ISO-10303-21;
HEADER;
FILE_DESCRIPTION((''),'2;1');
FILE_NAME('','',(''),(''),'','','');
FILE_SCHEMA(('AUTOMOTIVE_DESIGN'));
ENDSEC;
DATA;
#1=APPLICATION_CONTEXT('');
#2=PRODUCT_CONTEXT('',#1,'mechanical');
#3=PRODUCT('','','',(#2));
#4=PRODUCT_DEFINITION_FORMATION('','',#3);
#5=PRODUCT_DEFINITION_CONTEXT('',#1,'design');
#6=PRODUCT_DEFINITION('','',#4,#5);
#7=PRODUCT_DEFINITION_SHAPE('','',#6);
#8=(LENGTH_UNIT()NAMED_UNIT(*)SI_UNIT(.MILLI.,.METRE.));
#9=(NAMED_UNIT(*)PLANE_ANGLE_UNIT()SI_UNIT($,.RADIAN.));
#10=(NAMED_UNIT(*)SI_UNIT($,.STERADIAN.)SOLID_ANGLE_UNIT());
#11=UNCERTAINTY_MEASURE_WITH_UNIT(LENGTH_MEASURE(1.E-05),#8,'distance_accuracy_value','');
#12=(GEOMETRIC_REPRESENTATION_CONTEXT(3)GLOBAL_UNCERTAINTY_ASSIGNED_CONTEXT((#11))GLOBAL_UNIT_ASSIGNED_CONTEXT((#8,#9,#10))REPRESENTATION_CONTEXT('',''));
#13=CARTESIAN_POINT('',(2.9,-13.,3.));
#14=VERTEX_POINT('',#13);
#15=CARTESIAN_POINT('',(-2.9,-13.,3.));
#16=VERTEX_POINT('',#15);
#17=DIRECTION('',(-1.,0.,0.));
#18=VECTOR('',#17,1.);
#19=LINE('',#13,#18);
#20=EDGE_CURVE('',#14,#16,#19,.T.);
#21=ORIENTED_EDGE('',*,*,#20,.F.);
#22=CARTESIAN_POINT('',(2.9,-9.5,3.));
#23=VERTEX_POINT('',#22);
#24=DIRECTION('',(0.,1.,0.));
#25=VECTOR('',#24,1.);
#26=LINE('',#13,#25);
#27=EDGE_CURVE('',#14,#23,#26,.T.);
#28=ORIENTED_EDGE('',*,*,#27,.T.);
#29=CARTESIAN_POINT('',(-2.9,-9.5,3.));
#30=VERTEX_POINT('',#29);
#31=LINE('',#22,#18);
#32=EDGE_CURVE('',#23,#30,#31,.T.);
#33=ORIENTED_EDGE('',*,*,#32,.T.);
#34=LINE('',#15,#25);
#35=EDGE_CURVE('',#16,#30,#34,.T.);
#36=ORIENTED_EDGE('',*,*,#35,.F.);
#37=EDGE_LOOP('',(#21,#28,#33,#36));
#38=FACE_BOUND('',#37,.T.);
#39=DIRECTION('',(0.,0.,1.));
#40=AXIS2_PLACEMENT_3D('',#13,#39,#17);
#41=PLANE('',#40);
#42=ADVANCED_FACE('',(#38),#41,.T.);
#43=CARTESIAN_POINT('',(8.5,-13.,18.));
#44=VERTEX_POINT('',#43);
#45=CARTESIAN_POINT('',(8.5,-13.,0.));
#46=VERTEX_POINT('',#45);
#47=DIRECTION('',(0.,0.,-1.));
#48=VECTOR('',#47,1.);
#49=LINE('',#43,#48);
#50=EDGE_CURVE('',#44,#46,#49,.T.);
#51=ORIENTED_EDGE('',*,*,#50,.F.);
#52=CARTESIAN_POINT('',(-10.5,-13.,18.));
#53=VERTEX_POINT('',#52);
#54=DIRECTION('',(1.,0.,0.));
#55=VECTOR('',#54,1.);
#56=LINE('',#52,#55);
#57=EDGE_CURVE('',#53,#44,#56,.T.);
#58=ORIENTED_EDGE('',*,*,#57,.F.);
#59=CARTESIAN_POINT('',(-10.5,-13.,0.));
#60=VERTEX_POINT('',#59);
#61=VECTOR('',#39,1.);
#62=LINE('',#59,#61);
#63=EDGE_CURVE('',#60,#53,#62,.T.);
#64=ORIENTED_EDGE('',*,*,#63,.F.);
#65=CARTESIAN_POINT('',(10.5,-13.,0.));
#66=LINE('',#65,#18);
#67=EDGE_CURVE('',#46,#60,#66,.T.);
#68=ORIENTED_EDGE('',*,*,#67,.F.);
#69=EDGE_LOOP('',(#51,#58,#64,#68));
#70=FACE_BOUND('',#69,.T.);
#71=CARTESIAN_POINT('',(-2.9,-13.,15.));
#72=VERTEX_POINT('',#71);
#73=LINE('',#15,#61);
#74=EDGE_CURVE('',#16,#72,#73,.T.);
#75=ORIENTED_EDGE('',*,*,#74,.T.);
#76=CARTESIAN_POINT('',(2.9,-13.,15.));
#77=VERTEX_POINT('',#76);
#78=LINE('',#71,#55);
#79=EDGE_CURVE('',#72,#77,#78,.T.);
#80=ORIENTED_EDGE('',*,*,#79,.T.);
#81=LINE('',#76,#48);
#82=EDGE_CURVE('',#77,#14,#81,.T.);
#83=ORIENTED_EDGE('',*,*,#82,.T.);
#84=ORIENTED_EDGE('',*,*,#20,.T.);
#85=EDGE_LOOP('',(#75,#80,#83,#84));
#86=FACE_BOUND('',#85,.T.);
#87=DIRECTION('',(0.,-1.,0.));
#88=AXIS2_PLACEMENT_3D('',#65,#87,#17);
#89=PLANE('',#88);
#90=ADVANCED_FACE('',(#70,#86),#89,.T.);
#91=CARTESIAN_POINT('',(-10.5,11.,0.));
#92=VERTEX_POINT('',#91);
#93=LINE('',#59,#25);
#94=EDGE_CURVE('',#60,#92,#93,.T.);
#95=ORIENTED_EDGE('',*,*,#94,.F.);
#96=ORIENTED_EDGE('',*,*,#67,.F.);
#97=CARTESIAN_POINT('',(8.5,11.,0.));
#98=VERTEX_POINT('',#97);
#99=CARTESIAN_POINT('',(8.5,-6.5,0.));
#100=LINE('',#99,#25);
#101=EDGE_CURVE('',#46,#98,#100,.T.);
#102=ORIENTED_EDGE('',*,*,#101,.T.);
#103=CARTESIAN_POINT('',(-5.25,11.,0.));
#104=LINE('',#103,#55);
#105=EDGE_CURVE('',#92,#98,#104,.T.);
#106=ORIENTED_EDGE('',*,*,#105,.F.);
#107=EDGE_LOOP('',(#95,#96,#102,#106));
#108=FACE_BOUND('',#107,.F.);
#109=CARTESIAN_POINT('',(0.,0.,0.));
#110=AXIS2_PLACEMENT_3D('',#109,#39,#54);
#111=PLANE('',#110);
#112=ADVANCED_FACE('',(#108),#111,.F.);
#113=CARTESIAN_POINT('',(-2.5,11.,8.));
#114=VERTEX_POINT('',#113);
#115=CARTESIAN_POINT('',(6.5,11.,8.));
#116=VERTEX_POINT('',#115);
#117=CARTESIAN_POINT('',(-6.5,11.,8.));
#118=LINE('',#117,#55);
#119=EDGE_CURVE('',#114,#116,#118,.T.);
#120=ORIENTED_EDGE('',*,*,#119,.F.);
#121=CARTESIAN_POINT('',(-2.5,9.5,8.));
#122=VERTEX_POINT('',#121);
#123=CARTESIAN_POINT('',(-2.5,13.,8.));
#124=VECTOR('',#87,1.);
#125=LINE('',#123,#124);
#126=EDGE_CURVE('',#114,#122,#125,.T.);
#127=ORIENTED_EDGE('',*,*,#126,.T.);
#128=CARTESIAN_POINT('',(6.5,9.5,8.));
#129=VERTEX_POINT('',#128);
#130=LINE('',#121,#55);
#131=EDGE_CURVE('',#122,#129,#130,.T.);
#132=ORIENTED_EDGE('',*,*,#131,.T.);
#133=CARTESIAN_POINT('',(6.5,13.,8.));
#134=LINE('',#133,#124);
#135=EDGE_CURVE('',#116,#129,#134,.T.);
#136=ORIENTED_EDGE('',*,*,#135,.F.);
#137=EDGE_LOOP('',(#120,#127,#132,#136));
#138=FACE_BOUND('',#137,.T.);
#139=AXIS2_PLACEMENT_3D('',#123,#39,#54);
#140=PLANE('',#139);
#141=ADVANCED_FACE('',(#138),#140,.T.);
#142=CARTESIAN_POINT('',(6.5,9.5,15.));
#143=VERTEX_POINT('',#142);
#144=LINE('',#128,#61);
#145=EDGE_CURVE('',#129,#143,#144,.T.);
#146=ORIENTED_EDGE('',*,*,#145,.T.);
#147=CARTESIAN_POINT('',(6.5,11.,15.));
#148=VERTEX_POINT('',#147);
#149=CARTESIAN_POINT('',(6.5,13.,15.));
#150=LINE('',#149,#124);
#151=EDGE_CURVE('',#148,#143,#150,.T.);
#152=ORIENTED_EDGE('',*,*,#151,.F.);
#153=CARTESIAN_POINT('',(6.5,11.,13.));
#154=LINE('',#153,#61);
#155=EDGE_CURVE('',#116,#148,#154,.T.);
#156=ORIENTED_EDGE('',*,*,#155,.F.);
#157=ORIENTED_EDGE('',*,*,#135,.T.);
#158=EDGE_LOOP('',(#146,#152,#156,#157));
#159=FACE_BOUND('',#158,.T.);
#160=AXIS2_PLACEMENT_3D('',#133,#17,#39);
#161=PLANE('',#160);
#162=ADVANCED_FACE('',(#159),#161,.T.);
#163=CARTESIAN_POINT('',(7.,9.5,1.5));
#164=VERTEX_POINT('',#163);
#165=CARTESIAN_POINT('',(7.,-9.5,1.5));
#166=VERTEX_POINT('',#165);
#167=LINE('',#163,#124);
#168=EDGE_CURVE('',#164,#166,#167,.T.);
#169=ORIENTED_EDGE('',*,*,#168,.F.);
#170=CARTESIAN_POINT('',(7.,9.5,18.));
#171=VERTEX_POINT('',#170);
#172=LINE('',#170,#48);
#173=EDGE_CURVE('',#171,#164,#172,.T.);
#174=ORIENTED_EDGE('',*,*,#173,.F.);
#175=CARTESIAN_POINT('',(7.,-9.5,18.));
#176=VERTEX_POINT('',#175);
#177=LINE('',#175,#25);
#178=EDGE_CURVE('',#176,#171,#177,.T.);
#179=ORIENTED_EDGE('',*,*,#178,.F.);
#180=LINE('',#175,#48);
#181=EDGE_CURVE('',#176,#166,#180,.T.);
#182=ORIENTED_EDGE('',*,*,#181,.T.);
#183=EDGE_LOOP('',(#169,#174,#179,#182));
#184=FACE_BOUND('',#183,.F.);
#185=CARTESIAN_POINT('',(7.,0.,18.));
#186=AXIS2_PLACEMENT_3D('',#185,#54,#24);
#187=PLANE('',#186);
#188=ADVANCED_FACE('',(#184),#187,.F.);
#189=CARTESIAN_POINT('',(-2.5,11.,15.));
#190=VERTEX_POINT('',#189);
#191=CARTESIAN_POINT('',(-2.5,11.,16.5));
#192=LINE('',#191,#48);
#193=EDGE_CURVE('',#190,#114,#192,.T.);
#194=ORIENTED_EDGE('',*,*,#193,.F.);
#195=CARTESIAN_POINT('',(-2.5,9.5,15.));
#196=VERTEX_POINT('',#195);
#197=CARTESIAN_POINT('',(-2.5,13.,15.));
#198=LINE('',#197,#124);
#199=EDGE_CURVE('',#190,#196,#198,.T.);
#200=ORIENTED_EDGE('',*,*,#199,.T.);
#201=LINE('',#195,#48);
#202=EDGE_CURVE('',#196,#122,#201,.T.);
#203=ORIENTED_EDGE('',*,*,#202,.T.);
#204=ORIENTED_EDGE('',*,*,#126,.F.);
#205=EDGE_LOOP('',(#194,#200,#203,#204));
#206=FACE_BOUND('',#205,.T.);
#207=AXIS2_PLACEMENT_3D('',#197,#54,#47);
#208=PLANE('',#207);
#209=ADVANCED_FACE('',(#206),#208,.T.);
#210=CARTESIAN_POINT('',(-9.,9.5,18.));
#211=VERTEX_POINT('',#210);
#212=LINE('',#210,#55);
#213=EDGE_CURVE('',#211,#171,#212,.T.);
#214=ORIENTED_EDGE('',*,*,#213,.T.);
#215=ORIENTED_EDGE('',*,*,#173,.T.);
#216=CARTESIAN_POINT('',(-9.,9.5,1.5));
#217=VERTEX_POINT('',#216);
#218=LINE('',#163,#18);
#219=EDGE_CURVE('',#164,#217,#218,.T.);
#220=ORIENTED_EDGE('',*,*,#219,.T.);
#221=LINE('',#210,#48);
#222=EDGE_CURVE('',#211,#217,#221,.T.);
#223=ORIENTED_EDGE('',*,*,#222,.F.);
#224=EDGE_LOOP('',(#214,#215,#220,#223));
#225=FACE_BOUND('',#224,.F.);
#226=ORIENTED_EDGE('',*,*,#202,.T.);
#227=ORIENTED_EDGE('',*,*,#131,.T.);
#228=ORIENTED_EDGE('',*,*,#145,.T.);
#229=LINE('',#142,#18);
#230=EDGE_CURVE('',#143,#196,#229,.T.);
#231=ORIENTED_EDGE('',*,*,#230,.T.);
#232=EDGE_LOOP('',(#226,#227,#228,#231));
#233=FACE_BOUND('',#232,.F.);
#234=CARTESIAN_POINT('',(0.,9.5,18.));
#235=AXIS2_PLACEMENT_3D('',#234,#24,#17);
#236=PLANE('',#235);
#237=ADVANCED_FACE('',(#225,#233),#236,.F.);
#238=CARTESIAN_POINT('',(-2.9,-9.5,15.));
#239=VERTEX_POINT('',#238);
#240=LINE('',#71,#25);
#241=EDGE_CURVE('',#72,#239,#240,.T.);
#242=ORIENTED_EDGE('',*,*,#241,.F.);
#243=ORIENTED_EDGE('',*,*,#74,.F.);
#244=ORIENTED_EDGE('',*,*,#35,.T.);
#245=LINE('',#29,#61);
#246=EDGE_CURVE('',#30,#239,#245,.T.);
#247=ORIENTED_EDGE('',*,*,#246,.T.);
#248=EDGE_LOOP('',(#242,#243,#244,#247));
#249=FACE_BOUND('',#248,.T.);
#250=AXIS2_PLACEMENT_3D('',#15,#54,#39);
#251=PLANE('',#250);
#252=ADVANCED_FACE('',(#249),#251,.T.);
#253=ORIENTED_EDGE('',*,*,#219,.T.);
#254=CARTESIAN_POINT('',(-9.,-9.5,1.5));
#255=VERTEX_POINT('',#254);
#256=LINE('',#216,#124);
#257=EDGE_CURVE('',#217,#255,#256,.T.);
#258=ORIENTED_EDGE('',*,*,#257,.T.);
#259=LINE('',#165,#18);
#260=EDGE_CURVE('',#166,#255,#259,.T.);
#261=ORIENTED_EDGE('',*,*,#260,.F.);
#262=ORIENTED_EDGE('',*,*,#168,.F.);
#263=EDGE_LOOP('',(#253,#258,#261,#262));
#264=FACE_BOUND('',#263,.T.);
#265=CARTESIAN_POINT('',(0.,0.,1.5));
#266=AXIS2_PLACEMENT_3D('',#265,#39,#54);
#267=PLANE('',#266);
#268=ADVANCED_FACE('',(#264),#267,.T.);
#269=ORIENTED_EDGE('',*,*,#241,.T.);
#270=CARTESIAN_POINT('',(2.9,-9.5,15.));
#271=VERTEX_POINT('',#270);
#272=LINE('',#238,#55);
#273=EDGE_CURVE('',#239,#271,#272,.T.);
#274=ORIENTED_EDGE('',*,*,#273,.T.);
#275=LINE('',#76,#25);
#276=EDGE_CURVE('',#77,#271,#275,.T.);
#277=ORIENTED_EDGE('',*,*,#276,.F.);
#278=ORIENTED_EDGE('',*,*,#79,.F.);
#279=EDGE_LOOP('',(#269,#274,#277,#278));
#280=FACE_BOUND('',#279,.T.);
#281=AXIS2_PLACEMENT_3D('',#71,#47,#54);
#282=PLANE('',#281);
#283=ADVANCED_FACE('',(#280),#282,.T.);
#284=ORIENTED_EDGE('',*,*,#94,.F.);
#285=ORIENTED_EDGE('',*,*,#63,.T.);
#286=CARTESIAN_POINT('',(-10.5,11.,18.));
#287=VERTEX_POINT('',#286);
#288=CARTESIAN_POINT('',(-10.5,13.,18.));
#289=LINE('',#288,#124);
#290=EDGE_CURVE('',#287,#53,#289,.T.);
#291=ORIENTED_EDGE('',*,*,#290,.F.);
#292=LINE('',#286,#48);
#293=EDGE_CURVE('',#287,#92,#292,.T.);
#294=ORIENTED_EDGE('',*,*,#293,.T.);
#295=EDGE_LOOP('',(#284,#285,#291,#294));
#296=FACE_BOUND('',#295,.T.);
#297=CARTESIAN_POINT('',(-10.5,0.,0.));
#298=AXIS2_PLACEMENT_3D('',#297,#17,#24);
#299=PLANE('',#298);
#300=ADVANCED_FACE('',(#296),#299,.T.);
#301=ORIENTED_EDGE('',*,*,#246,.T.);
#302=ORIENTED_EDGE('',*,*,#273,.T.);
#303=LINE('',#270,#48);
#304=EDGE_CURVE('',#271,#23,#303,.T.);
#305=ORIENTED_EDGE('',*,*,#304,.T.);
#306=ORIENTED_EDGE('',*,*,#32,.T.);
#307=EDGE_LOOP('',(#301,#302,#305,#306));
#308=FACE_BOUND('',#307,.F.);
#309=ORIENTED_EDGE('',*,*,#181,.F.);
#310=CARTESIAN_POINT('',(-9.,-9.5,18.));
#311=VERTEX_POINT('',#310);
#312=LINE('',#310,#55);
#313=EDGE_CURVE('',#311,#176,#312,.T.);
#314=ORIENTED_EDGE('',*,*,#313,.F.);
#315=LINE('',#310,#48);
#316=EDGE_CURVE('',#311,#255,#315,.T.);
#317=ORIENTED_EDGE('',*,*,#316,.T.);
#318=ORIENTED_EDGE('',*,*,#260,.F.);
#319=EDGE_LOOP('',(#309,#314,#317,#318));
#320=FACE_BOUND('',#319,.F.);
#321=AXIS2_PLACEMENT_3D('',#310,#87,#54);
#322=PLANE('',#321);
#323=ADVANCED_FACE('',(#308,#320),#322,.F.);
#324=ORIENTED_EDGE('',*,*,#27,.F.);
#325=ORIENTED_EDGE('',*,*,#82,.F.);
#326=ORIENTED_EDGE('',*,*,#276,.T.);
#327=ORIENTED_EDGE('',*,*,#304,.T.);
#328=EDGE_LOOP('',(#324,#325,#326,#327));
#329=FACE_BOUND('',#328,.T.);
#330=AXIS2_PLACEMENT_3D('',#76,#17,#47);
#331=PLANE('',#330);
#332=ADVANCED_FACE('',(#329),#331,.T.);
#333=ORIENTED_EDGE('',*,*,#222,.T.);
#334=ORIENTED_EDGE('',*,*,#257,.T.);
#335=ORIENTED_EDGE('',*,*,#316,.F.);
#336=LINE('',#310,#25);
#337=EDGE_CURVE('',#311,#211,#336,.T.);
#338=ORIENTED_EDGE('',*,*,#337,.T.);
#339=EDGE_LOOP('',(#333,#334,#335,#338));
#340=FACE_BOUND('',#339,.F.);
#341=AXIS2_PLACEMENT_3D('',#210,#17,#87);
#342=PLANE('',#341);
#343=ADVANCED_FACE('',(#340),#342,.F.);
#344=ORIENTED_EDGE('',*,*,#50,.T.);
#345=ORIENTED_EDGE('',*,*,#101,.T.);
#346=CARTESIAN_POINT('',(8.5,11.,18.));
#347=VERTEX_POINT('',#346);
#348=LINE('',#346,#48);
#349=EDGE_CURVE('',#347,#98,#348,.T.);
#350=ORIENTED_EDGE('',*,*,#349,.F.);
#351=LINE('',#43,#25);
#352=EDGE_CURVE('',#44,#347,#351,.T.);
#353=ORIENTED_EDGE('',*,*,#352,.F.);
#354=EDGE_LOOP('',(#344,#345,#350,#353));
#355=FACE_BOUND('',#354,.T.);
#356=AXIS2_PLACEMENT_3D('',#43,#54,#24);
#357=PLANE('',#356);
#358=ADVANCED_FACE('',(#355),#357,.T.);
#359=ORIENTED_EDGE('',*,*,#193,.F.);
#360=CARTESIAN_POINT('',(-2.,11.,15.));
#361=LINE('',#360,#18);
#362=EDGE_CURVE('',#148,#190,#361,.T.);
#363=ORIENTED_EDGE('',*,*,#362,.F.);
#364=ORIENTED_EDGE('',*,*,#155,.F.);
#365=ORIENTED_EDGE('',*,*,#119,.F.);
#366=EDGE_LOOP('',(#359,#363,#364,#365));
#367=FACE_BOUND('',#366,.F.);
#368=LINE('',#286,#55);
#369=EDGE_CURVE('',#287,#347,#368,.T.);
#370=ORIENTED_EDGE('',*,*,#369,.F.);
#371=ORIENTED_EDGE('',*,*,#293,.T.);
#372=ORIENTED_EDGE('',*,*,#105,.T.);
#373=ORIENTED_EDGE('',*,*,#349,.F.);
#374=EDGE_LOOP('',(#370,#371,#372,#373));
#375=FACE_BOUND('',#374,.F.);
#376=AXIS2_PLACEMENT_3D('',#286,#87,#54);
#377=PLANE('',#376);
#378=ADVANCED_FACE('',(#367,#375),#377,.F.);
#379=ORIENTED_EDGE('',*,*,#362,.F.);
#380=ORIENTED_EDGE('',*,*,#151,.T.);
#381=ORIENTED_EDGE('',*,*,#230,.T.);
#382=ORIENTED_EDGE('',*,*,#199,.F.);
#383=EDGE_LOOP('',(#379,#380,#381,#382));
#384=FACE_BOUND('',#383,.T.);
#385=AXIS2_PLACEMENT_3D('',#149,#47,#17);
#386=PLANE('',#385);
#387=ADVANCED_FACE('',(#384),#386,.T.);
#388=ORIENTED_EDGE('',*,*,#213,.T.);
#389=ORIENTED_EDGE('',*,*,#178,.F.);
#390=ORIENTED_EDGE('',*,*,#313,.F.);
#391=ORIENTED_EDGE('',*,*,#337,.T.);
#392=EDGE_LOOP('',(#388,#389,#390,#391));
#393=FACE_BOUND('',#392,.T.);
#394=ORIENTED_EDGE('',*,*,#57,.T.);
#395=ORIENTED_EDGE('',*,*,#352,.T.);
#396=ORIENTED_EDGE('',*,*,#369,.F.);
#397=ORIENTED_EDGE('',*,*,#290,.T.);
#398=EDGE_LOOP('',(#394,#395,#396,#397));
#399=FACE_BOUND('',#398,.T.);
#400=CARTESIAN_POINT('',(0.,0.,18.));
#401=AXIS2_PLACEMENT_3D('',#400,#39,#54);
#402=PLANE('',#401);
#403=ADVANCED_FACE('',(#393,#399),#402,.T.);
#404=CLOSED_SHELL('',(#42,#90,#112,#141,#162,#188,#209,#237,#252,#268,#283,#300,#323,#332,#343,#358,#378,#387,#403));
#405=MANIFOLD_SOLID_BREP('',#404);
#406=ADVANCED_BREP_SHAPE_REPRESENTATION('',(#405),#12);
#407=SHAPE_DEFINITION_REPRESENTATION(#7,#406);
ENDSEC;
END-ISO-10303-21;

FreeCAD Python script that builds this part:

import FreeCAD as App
import Part
import Sketcher
Q = App.Units.Quantity


def add_polygon(sketch, points):
    """Adds a closed chain of lines whose ends are joined by coincident constraints."""
    first, n = sketch.GeometryCount, len(points)
    for a, b in zip(points, points[1:] + points[:1]):
        sketch.addGeometry(Part.LineSegment(App.Vector(*a, 0), App.Vector(*b, 0)), False)
    for i in range(n):
        sketch.addConstraint(Sketcher.Constraint("Coincident", first + i, 2, first + (i + 1) % n, 1))

doc = App.newDocument("Part")
body = doc.addObject("PartDesign::Body", "Body")

# Sketch on XY plane
sketch1 = doc.addObject("Sketcher::SketchObject", "Sketch")
body.addObject(sketch1)
sketch1.AttachmentSupport = (doc.XY_Plane, [""])
sketch1.MapMode = "FlatFace"
add_polygon(sketch1, [(10, 13), (-10, 13), (-10, -13), (10, -13)])  # lines 0-3
sketch1.addConstraint([
    Sketcher.Constraint("Horizontal", 0),
    Sketcher.Constraint("Vertical", 1),
    Sketcher.Constraint("Horizontal", 2),
    Sketcher.Constraint("Vertical", 3),
    Sketcher.Constraint("Symmetric", 0, 2, 2, 2, -1, 1),
    Sketcher.Constraint("DistanceX", 0, 2, 0, 1, Q("21 mm")),
    Sketcher.Constraint("DistanceY", 1, 2, 1, 1, Q("26 mm")),
])
pad1 = doc.addObject("PartDesign::Pad", "Pad")
body.addObject(pad1)
pad1.Profile = sketch1
pad1.Length = 18

# Sketch on XY plane
sketch2 = doc.addObject("Sketcher::SketchObject", "Sketch001")
body.addObject(sketch2)
sketch2.AttachmentSupport = (doc.XY_Plane, [""])
sketch2.MapMode = "FlatFace"
sketch2.AttachmentOffset = App.Placement(App.Vector(0, 0, 18), App.Rotation())
add_polygon(sketch2, [(-9, 10), (-9, -10), (7, -10), (7, 10)])  # lines 0-3
sketch2.addConstraint([
    Sketcher.Constraint("Vertical", 0),
    Sketcher.Constraint("Horizontal", 1),
    Sketcher.Constraint("Vertical", 2),
    Sketcher.Constraint("Horizontal", 3),
    Sketcher.Constraint("DistanceX", 1, 1, 1, 2, Q("16 mm")),
    Sketcher.Constraint("DistanceY", 0, 2, 0, 1, Q("19 mm")),
    Sketcher.Constraint("DistanceX", 0, 2, -1, 1, Q("9 mm")),
    Sketcher.Constraint("DistanceY", 0, 2, -1, 1, Q("9.5 mm")),
])
pocket1 = doc.addObject("PartDesign::Pocket", "Pocket")
body.addObject(pocket1)
pocket1.Profile = sketch2
pocket1.Length = 16.5

# Sketch on XZ plane
sketch3 = doc.addObject("Sketcher::SketchObject", "Sketch002")
body.addObject(sketch3)
sketch3.AttachmentSupport = (doc.XZ_Plane, [""])
sketch3.MapMode = "FlatFace"
sketch3.AttachmentOffset = App.Placement(App.Vector(0, 0, -13), App.Rotation())
add_polygon(sketch3, [(-2, 15), (6, 15), (6, 8), (-2, 8)])  # lines 0-3
sketch3.addConstraint([
    Sketcher.Constraint("Horizontal", 0),
    Sketcher.Constraint("Vertical", 1),
    Sketcher.Constraint("Horizontal", 2),
    Sketcher.Constraint("Vertical", 3),
    Sketcher.Constraint("DistanceX", 0, 1, 0, 2, Q("9 mm")),
    Sketcher.Constraint("DistanceY", 1, 2, 1, 1, Q("7 mm")),
    Sketcher.Constraint("DistanceY", -1, 1, 1, 2, Q("8 mm")),
    Sketcher.Constraint("DistanceX", -1, 1, 0, 2, Q("6.5 mm")),
])
pocket2 = doc.addObject("PartDesign::Pocket", "Pocket001")
body.addObject(pocket2)
pocket2.Profile = sketch3
pocket2.Length = 3.5
pocket2.Reversed = True

# Sketch on XZ plane
sketch4 = doc.addObject("Sketcher::SketchObject", "Sketch003")
body.addObject(sketch4)
sketch4.AttachmentSupport = (doc.XZ_Plane, [""])
sketch4.MapMode = "FlatFace"
sketch4.AttachmentOffset = App.Placement(App.Vector(0, 0, 13), App.Rotation())
add_polygon(sketch4, [(3, 15), (-3, 15), (-3, 3), (3, 3)])  # lines 0-3
sketch4.addConstraint([
    Sketcher.Constraint("Horizontal", 0),
    Sketcher.Constraint("Vertical", 1),
    Sketcher.Constraint("Horizontal", 2),
    Sketcher.Constraint("Vertical", 3),
    Sketcher.Constraint("DistanceY", 1, 2, 1, 1, Q("12 mm")),
    Sketcher.Constraint("DistanceX", 0, 2, 0, 1, Q("5.8 mm")),
    Sketcher.Constraint("DistanceY", -1, 1, 0, 2, Q("15 mm")),
    Sketcher.Constraint("DistanceX", 0, 2, -1, 1, Q("2.9 mm")),
])
pocket3 = doc.addObject("PartDesign::Pocket", "Pocket002")
body.addObject(pocket3)
pocket3.Profile = sketch4
pocket3.Length = 3.5

# Sketch on XY plane
sketch5 = doc.addObject("Sketcher::SketchObject", "Sketch004")
body.addObject(sketch5)
sketch5.AttachmentSupport = (doc.XY_Plane, [""])
sketch5.MapMode = "FlatFace"
sketch5.AttachmentOffset = App.Placement(App.Vector(0, 0, 18), App.Rotation())
add_polygon(sketch5, [(8.5, 11), (8.5, -13), (10.5, -13), (10.5, 13), (-10.5, 13), (-10.5, 11)])  # lines 0-5
sketch5.addConstraint([
    Sketcher.Constraint("Vertical", 0),
    Sketcher.Constraint("Horizontal", 1),
    Sketcher.Constraint("Vertical", 2),
    Sketcher.Constraint("Horizontal", 3),
    Sketcher.Constraint("Vertical", 4),
    Sketcher.Constraint("Horizontal", 5),
    Sketcher.Constraint("Symmetric", 1, 2, 3, 2, -1, 1),
    Sketcher.Constraint("Equal", 1, 4),
    Sketcher.Constraint("DistanceX", 1, 1, 1, 2, Q("2 mm")),
    Sketcher.Constraint("DistanceX", 3, 2, 3, 1, Q("21 mm")),
    Sketcher.Constraint("DistanceY", 0, 2, 0, 1, Q("24 mm")),
])
pocket4 = doc.addObject("PartDesign::Pocket", "Pocket003")
body.addObject(pocket4)
pocket4.Profile = sketch5
pocket4.Type = "ThroughAll"

doc.recompute()
